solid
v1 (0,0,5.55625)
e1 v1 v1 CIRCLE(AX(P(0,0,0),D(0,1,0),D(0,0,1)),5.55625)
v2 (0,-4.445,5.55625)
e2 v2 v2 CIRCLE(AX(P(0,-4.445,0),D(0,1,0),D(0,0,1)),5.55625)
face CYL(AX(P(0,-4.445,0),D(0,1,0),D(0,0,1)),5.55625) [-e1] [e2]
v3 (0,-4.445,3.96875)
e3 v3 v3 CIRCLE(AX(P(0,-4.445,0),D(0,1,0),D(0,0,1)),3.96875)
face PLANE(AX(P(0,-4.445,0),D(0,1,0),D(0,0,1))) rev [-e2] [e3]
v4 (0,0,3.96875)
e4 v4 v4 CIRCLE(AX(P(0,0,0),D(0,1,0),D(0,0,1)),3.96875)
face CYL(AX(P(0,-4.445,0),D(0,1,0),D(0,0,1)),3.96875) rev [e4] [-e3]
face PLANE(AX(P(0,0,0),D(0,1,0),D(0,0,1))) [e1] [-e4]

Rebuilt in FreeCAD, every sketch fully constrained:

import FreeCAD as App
import Part
import Sketcher

V = App.Vector
Q = App.Units.Quantity

doc = App.newDocument("Part")
body = doc.addObject("PartDesign::Body", "Body")

# Sketch on XZ plane
sketch1 = body.newObject("Sketcher::SketchObject", "Sketch")
sketch1.AttachmentSupport = (doc.getObject("XZ_Plane"), [""])
sketch1.MapMode = "FlatFace"
sketch1.addGeometry([
    Part.Circle(V(0, 0, 0), V(0, 0, 1), 5.6),
    Part.Circle(V(0, 0, 0), V(0, 0, 1), 4),
], False)
sketch1.addConstraint([
    Sketcher.Constraint("Coincident", 0, 3, -1, 1),
    Sketcher.Constraint("Coincident", 1, 3, -1, 1),
    Sketcher.Constraint("Diameter", 0, Q("0.4375 in")),
    Sketcher.Constraint("Diameter", 1, Q("0.3125 in")),
])
pad1 = body.newObject("PartDesign::Pad", "Pad")
pad1.Profile = sketch1
pad1.Length = Q("0.175 in")

doc.recompute()
